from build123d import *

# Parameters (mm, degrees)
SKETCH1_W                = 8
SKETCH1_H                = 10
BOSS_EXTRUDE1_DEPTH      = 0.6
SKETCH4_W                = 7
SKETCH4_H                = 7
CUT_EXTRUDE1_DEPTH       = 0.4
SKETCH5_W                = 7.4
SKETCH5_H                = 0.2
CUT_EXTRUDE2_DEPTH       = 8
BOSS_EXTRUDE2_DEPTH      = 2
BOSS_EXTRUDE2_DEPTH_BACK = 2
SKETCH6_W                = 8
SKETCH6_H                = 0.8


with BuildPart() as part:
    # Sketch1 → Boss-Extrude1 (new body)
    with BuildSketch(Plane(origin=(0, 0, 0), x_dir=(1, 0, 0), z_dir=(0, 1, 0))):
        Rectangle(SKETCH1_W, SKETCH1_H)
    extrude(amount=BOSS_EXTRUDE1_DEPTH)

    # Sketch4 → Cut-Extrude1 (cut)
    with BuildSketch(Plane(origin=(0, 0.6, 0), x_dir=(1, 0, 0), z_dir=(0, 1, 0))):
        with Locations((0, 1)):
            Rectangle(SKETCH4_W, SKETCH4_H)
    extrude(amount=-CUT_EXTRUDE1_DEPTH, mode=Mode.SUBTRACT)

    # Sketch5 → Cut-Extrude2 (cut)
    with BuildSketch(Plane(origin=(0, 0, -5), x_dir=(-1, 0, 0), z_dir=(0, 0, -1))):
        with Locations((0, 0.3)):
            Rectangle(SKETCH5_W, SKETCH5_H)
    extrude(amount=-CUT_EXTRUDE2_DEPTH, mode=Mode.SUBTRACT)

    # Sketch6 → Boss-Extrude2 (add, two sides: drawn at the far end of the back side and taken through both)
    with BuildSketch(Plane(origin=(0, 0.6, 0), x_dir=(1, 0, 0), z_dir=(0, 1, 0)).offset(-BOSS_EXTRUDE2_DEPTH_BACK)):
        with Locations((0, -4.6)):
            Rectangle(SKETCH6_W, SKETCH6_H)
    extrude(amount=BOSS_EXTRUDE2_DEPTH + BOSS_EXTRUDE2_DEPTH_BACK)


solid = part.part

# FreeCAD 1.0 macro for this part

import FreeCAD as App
import Part
import Sketcher

V = App.Vector


def add_polygon(sketch, points):
    """Adds a closed chain of lines whose ends are joined by coincident constraints."""
    first, n = sketch.GeometryCount, len(points)
    for a, b in zip(points, points[1:] + points[:1]):
        sketch.addGeometry(Part.LineSegment(App.Vector(*a, 0), App.Vector(*b, 0)), False)
    for i in range(n):
        sketch.addConstraint(Sketcher.Constraint("Coincident", first + i, 2, first + (i + 1) % n, 1))

doc = App.newDocument("Part")
params = doc.addObject("Spreadsheet::Sheet", "Params")
for row, (alias, value) in enumerate([
    ("sketch1_width", "8 mm"),
    ("sketch1_height", "10 mm"),
    ("pad1_length", "0.6 mm"),
    ("sketch2_width", "7 mm"),
    ("pocket1_length", "0.4 mm"),
    ("sketch3_width", "7.4 mm"),
    ("sketch3_height", "0.2 mm"),
    ("pocket2_length", "8 mm"),
    ("sketch4_width", "8 mm"),
    ("sketch4_height", "0.8 mm"),
    ("pad2_length", "2 mm"),
    ("pad2_length2", "2 mm"),
], start=1):
    params.set(f"A{row}", alias)
    params.set(f"B{row}", "=" + value)
    params.setAlias(f"B{row}", alias)

body = doc.addObject("PartDesign::Body", "Body")

# Sketch on XZ plane
sketch1 = body.newObject("Sketcher::SketchObject", "Sketch")
sketch1.AttachmentSupport = (doc.getObject("XZ_Plane"), [""])
sketch1.MapMode = "FlatFace"
add_polygon(sketch1, [(-4, -5), (-4, 5), (4, 5), (4, -5)])  # lines 0-3
sketch1.addConstraint([
    Sketcher.Constraint("Vertical", 0),
    Sketcher.Constraint("Horizontal", 1),
    Sketcher.Constraint("Vertical", 2),
    Sketcher.Constraint("Horizontal", 3),
    Sketcher.Constraint("Symmetric", 0, 2, 2, 2, -1, 1),
    Sketcher.Constraint("DistanceX", 1, 1, 1, 2, 8.0),
    Sketcher.Constraint("DistanceY", 0, 1, 0, 2, 10.0),
])
sketch1.setExpression("Constraints[9]", "Params.sketch1_width")
sketch1.setExpression("Constraints[10]", "Params.sketch1_height")
pad1 = body.newObject("PartDesign::Pad", "Pad")
pad1.Profile = sketch1
pad1.setExpression("Length", "Params.pad1_length")
pad1.Reversed = True

# Sketch on XZ plane
sketch2 = body.newObject("Sketcher::SketchObject", "Sketch001")
sketch2.AttachmentSupport = (doc.getObject("XZ_Plane"), [""])
sketch2.MapMode = "FlatFace"
sketch2.AttachmentOffset = App.Placement(V(0, 0, -0.6), App.Rotation())
add_polygon(sketch2, [(-4, -4), (-4, 2), (4, 2), (4, -4)])  # lines 0-3
sketch2.addConstraint([
    Sketcher.Constraint("Vertical", 0),
    Sketcher.Constraint("Horizontal", 1),
    Sketcher.Constraint("Vertical", 2),
    Sketcher.Constraint("Horizontal", 3),
    Sketcher.Constraint("Equal", 3, 0),
    Sketcher.Constraint("DistanceX", 1, 1, 1, 2, 7.0),
    Sketcher.Constraint("DistanceX", 0, 2, -1, 1, 3.5),
    Sketcher.Constraint("DistanceY", -1, 1, 0, 2, 2.5),
])
sketch2.setExpression("Constraints[9]", "Params.sketch2_width")
pocket1 = body.newObject("PartDesign::Pocket", "Pocket")
pocket1.Profile = sketch2
pocket1.setExpression("Length", "Params.pocket1_length")
pocket1.Reversed = True

# Sketch on XY plane
sketch3 = body.newObject("Sketcher::SketchObject", "Sketch002")
sketch3.AttachmentSupport = (doc.getObject("XY_Plane"), [""])
sketch3.MapMode = "FlatFace"
sketch3.AttachmentOffset = App.Placement(V(0, 0, -5), App.Rotation())
add_polygon(sketch3, [(3.7, 0.4), (3.7, 0.2), (-3.7, 0.2), (-3.7, 0.4)])  # lines 0-3
sketch3.addConstraint([
    Sketcher.Constraint("Vertical", 0),
    Sketcher.Constraint("Horizontal", 1),
    Sketcher.Constraint("Vertical", 2),
    Sketcher.Constraint("Horizontal", 3),
    Sketcher.Constraint("DistanceX", 1, 2, 1, 1, 7.4),
    Sketcher.Constraint("DistanceY", 0, 2, 0, 1, 0.2),
    Sketcher.Constraint("DistanceX", -1, 1, 0, 2, 3.7),
    Sketcher.Constraint("DistanceY", -1, 1, 0, 2, 0.2),
])
sketch3.setExpression("Constraints[8]", "Params.sketch3_width")
sketch3.setExpression("Constraints[9]", "Params.sketch3_height")
pocket2 = body.newObject("PartDesign::Pocket", "Pocket001")
pocket2.Profile = sketch3
pocket2.setExpression("Length", "Params.pocket2_length")
pocket2.Reversed = True

# Sketch on XZ plane
sketch4 = body.newObject("Sketcher::SketchObject", "Sketch003")
sketch4.AttachmentSupport = (doc.getObject("XZ_Plane"), [""])
sketch4.MapMode = "FlatFace"
sketch4.AttachmentOffset = App.Placement(V(0, 0, -0.6), App.Rotation())
add_polygon(sketch4, [(-4, 4.2), (-4, 5), (4, 5), (4, 4.2)])  # lines 0-3
sketch4.addConstraint([
    Sketcher.Constraint("Vertical", 0),
    Sketcher.Constraint("Horizontal", 1),
    Sketcher.Constraint("Vertical", 2),
    Sketcher.Constraint("Horizontal", 3),
    Sketcher.Constraint("DistanceX", 1, 1, 1, 2, 8.0),
    Sketcher.Constraint("DistanceY", 0, 1, 0, 2, 0.8),
    Sketcher.Constraint("DistanceX", 0, 2, -1, 1, 4.0),
    Sketcher.Constraint("DistanceY", -1, 1, 0, 2, 5.0),
])
sketch4.setExpression("Constraints[8]", "Params.sketch4_width")
sketch4.setExpression("Constraints[9]", "Params.sketch4_height")
pad2 = body.newObject("PartDesign::Pad", "Pad001")
pad2.Profile = sketch4
pad2.Type = "TwoLengths"
pad2.setExpression("Length", "Params.pad2_length")
pad2.setExpression("Length2", "Params.pad2_length2")
pad2.Reversed = True

doc.recompute()
